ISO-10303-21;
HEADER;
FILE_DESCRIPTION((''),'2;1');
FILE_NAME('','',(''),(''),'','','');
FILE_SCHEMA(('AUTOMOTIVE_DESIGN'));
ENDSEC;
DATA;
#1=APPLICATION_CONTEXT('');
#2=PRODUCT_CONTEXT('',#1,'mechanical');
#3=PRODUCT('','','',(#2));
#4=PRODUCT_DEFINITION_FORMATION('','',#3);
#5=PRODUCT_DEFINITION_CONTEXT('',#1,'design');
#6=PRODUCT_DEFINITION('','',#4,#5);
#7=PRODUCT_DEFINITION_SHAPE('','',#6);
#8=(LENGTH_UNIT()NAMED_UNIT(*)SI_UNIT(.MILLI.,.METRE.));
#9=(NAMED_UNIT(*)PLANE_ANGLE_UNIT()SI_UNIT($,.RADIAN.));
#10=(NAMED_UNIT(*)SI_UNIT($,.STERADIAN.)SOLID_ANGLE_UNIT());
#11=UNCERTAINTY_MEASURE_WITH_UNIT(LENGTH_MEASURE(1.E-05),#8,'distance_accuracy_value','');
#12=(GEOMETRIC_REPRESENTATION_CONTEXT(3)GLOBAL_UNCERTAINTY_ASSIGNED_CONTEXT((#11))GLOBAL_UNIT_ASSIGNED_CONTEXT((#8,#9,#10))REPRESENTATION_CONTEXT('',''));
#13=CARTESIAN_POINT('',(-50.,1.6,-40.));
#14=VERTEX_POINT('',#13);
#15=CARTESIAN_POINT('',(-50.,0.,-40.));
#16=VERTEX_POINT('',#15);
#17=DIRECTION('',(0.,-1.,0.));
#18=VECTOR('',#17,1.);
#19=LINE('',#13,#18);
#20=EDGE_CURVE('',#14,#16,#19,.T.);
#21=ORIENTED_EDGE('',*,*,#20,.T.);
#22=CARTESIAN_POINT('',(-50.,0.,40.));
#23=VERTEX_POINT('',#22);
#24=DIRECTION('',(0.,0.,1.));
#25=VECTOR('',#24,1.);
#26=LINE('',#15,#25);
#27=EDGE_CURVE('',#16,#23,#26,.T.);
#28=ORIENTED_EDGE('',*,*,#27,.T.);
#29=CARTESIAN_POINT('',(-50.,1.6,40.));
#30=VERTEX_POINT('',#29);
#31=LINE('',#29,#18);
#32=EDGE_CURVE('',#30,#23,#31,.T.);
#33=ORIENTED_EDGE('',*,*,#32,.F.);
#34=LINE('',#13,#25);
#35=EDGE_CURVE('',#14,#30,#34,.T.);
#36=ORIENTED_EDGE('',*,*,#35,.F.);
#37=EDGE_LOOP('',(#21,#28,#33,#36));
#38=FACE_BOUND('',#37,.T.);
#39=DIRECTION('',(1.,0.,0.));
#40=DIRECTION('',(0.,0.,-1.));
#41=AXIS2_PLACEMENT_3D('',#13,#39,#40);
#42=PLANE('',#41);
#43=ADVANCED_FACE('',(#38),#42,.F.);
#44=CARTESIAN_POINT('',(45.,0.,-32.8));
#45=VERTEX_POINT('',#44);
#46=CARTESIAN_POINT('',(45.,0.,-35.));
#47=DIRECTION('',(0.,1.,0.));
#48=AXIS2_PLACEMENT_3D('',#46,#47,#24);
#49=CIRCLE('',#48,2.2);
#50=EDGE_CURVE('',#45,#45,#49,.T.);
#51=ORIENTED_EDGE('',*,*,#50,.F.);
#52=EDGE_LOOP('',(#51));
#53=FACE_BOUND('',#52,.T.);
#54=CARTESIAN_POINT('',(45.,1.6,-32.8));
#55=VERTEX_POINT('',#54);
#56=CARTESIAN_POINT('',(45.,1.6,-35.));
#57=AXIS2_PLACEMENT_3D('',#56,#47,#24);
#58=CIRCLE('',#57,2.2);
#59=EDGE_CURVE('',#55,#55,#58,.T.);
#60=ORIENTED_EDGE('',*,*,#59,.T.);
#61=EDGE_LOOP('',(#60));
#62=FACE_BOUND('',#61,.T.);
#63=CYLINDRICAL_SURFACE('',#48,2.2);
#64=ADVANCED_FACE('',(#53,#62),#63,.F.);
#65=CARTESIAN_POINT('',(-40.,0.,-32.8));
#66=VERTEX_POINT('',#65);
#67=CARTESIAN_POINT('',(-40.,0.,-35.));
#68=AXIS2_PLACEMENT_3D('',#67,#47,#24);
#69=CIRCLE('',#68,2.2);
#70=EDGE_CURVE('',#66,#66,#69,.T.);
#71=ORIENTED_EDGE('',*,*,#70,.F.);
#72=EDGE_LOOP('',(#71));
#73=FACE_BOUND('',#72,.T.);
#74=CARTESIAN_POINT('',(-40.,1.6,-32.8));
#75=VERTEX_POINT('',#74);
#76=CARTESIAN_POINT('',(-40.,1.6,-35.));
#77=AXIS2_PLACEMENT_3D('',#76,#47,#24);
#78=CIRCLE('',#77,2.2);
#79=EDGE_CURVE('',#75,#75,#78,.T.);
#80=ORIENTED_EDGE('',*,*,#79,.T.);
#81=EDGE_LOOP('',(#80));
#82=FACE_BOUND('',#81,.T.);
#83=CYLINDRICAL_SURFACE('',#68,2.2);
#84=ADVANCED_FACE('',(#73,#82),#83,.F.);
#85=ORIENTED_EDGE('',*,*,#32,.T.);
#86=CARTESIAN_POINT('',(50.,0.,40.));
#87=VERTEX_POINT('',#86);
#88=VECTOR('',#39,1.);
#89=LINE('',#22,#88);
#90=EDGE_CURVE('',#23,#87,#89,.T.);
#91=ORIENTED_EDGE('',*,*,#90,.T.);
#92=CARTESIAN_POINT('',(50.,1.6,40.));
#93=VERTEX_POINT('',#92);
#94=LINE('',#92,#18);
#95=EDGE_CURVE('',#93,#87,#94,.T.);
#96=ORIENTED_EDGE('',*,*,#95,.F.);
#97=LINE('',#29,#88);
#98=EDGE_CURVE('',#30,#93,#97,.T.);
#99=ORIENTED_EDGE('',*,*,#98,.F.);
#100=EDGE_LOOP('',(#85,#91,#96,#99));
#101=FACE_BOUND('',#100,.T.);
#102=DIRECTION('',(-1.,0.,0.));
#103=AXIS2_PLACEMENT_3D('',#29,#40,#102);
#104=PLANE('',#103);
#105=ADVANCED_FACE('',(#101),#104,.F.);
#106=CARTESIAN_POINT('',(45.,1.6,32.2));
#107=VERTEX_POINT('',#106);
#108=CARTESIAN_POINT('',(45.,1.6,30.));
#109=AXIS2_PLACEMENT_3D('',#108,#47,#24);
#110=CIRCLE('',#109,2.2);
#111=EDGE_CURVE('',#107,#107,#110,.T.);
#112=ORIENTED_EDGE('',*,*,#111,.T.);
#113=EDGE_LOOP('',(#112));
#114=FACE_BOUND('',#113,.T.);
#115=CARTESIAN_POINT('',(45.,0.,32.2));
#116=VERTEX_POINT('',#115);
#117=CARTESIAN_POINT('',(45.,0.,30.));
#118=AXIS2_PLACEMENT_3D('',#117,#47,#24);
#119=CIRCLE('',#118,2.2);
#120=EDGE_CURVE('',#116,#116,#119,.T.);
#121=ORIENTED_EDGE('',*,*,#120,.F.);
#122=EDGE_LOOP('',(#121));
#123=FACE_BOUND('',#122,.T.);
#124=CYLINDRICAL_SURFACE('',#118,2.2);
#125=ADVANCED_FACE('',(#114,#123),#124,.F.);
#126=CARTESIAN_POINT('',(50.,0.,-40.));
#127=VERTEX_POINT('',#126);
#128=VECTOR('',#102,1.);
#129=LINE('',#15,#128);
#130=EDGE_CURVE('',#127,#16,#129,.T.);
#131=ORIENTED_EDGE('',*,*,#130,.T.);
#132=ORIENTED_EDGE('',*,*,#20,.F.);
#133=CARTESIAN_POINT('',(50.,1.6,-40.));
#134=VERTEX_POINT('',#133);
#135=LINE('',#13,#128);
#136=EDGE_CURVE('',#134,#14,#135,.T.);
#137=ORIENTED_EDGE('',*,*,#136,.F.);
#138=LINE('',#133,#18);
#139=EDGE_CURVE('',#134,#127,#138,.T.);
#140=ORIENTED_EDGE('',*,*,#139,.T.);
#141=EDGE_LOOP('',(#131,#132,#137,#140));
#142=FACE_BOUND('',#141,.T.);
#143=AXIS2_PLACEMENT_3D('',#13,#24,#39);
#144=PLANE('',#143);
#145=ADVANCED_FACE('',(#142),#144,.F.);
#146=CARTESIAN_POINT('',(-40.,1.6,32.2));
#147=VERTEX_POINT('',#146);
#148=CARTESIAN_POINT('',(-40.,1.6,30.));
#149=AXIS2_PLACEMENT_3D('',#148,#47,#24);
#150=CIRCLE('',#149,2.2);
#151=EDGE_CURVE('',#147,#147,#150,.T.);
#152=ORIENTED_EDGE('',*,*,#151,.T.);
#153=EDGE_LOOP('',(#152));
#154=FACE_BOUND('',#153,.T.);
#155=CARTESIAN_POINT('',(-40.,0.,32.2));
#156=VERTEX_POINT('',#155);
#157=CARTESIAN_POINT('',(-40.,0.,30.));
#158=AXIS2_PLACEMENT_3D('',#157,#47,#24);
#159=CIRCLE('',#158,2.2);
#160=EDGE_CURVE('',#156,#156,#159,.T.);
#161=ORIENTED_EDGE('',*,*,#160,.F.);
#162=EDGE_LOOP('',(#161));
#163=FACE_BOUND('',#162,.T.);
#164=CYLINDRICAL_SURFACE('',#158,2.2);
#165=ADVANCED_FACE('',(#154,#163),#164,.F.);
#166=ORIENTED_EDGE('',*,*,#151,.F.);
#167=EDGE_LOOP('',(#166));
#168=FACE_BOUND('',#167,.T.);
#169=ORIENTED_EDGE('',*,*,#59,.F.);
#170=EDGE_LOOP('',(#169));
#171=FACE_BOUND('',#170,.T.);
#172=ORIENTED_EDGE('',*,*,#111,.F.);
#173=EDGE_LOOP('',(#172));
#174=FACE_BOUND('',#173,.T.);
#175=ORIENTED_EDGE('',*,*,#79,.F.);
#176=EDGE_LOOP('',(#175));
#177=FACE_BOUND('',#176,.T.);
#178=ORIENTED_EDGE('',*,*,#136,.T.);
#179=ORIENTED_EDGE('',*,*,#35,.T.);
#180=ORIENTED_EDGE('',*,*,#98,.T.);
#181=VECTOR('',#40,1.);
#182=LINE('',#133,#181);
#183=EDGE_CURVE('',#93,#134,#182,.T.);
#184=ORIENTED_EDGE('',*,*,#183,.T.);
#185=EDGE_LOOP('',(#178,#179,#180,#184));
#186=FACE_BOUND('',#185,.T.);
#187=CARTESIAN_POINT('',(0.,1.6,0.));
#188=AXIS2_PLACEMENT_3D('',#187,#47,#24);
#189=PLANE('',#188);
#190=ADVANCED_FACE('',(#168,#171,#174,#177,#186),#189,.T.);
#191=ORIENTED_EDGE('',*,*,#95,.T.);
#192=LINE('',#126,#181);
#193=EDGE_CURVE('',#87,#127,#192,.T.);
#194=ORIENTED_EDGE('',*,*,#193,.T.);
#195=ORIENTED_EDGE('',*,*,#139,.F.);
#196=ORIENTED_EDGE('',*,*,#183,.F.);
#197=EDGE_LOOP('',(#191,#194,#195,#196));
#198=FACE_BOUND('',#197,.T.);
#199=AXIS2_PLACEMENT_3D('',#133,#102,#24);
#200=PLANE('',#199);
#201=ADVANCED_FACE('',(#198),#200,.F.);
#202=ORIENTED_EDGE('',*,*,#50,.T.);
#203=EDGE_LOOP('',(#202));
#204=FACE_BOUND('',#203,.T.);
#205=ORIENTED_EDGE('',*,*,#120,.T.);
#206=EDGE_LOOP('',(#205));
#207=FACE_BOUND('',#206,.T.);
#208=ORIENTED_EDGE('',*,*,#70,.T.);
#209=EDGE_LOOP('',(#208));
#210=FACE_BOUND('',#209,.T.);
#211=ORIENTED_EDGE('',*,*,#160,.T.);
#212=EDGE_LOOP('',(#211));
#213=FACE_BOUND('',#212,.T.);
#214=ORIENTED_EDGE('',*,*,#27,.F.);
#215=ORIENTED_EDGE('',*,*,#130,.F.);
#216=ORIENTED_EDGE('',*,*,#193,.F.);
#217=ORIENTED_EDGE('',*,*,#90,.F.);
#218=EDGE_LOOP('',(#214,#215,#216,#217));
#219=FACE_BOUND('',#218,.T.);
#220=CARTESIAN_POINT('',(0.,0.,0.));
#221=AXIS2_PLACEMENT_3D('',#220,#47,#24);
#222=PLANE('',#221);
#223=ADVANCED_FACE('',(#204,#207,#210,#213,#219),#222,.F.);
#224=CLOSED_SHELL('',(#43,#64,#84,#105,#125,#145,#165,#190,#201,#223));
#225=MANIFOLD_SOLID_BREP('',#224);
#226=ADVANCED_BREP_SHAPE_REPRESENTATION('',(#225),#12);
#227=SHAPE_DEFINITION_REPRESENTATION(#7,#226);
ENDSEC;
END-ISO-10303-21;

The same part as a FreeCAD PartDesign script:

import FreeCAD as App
import Part
import Sketcher

V = App.Vector


def add_polygon(sketch, points):
    """Adds a closed chain of lines whose ends are joined by coincident constraints."""
    first, n = sketch.GeometryCount, len(points)
    for a, b in zip(points, points[1:] + points[:1]):
        sketch.addGeometry(Part.LineSegment(App.Vector(*a, 0), App.Vector(*b, 0)), False)
    for i in range(n):
        sketch.addConstraint(Sketcher.Constraint("Coincident", first + i, 2, first + (i + 1) % n, 1))

doc = App.newDocument("Part")
body = doc.addObject("PartDesign::Body", "Body")

sketch1 = doc.addObject("Sketcher::SketchObject", "Sketch")
body.addObject(sketch1)
sketch1.AttachmentSupport = (doc.XZ_Plane, [""])
sketch1.MapMode = "FlatFace"
add_polygon(sketch1, [(-50, -40), (-50, 40), (50, 40), (50, -40)])
sketch1.addConstraint(Sketcher.Constraint("Vertical", 0))
sketch1.addConstraint(Sketcher.Constraint("Horizontal", 1))
sketch1.addConstraint(Sketcher.Constraint("Vertical", 2))
sketch1.addConstraint(Sketcher.Constraint("Horizontal", 3))
sketch1.addConstraint(Sketcher.Constraint("Symmetric", 0, 2, 2, 2, -1, 1))
sketch1.addConstraint(Sketcher.Constraint("DistanceX", 1, 1, 1, 2, 100.0))
sketch1.addConstraint(Sketcher.Constraint("DistanceY", 0, 1, 0, 2, 80.0))
pad1 = doc.addObject("PartDesign::Pad", "Pad")
body.addObject(pad1)
pad1.Profile = sketch1
pad1.Length = 1.6
pad1.Reversed = True

sketch2 = doc.addObject("Sketcher::SketchObject", "Sketch001")
body.addObject(sketch2)
sketch2.AttachmentSupport = (doc.XZ_Plane, [""])
sketch2.MapMode = "FlatFace"
sketch2.AttachmentOffset = App.Placement(V(0, 0, -1.6), App.Rotation())
sketch2.addGeometry(Part.Circle(V(-40, 30, 0), V(0, 0, 1), 2.2), False)
sketch2.addGeometry(Part.Circle(V(-40, -35, 0), V(0, 0, 1), 2.2), False)
sketch2.addGeometry(Part.Circle(V(45, -35, 0), V(0, 0, 1), 2.2), False)
sketch2.addGeometry(Part.Circle(V(45, 30, 0), V(0, 0, 1), 2.2), False)
sketch2.addConstraint(Sketcher.Constraint("Equal", 0, 1))
sketch2.addConstraint(Sketcher.Constraint("Equal", 1, 2))
sketch2.addConstraint(Sketcher.Constraint("Equal", 2, 3))
sketch2.addConstraint(Sketcher.Constraint("Horizontal", 1, 3, 2, 3))
sketch2.addConstraint(Sketcher.Constraint("Horizontal", 0, 3, 3, 3))
sketch2.addConstraint(Sketcher.Constraint("Vertical", 0, 3, 1, 3))
sketch2.addConstraint(Sketcher.Constraint("Vertical", 2, 3, 3, 3))
sketch2.addConstraint(Sketcher.Constraint("Diameter", 0, 4.4))
sketch2.addConstraint(Sketcher.Constraint("DistanceX", 0, 3, -1, 1, 40.0))
sketch2.addConstraint(Sketcher.Constraint("DistanceY", -1, 1, 0, 3, 30.0))
sketch2.addConstraint(Sketcher.Constraint("DistanceY", 1, 3, -1, 1, 35.0))
sketch2.addConstraint(Sketcher.Constraint("DistanceX", -1, 1, 2, 3, 45.0))
pocket1 = doc.addObject("PartDesign::Pocket", "Pocket")
body.addObject(pocket1)
pocket1.Profile = sketch2
pocket1.Type = "ThroughAll"
pocket1.Reversed = True

doc.recompute()
